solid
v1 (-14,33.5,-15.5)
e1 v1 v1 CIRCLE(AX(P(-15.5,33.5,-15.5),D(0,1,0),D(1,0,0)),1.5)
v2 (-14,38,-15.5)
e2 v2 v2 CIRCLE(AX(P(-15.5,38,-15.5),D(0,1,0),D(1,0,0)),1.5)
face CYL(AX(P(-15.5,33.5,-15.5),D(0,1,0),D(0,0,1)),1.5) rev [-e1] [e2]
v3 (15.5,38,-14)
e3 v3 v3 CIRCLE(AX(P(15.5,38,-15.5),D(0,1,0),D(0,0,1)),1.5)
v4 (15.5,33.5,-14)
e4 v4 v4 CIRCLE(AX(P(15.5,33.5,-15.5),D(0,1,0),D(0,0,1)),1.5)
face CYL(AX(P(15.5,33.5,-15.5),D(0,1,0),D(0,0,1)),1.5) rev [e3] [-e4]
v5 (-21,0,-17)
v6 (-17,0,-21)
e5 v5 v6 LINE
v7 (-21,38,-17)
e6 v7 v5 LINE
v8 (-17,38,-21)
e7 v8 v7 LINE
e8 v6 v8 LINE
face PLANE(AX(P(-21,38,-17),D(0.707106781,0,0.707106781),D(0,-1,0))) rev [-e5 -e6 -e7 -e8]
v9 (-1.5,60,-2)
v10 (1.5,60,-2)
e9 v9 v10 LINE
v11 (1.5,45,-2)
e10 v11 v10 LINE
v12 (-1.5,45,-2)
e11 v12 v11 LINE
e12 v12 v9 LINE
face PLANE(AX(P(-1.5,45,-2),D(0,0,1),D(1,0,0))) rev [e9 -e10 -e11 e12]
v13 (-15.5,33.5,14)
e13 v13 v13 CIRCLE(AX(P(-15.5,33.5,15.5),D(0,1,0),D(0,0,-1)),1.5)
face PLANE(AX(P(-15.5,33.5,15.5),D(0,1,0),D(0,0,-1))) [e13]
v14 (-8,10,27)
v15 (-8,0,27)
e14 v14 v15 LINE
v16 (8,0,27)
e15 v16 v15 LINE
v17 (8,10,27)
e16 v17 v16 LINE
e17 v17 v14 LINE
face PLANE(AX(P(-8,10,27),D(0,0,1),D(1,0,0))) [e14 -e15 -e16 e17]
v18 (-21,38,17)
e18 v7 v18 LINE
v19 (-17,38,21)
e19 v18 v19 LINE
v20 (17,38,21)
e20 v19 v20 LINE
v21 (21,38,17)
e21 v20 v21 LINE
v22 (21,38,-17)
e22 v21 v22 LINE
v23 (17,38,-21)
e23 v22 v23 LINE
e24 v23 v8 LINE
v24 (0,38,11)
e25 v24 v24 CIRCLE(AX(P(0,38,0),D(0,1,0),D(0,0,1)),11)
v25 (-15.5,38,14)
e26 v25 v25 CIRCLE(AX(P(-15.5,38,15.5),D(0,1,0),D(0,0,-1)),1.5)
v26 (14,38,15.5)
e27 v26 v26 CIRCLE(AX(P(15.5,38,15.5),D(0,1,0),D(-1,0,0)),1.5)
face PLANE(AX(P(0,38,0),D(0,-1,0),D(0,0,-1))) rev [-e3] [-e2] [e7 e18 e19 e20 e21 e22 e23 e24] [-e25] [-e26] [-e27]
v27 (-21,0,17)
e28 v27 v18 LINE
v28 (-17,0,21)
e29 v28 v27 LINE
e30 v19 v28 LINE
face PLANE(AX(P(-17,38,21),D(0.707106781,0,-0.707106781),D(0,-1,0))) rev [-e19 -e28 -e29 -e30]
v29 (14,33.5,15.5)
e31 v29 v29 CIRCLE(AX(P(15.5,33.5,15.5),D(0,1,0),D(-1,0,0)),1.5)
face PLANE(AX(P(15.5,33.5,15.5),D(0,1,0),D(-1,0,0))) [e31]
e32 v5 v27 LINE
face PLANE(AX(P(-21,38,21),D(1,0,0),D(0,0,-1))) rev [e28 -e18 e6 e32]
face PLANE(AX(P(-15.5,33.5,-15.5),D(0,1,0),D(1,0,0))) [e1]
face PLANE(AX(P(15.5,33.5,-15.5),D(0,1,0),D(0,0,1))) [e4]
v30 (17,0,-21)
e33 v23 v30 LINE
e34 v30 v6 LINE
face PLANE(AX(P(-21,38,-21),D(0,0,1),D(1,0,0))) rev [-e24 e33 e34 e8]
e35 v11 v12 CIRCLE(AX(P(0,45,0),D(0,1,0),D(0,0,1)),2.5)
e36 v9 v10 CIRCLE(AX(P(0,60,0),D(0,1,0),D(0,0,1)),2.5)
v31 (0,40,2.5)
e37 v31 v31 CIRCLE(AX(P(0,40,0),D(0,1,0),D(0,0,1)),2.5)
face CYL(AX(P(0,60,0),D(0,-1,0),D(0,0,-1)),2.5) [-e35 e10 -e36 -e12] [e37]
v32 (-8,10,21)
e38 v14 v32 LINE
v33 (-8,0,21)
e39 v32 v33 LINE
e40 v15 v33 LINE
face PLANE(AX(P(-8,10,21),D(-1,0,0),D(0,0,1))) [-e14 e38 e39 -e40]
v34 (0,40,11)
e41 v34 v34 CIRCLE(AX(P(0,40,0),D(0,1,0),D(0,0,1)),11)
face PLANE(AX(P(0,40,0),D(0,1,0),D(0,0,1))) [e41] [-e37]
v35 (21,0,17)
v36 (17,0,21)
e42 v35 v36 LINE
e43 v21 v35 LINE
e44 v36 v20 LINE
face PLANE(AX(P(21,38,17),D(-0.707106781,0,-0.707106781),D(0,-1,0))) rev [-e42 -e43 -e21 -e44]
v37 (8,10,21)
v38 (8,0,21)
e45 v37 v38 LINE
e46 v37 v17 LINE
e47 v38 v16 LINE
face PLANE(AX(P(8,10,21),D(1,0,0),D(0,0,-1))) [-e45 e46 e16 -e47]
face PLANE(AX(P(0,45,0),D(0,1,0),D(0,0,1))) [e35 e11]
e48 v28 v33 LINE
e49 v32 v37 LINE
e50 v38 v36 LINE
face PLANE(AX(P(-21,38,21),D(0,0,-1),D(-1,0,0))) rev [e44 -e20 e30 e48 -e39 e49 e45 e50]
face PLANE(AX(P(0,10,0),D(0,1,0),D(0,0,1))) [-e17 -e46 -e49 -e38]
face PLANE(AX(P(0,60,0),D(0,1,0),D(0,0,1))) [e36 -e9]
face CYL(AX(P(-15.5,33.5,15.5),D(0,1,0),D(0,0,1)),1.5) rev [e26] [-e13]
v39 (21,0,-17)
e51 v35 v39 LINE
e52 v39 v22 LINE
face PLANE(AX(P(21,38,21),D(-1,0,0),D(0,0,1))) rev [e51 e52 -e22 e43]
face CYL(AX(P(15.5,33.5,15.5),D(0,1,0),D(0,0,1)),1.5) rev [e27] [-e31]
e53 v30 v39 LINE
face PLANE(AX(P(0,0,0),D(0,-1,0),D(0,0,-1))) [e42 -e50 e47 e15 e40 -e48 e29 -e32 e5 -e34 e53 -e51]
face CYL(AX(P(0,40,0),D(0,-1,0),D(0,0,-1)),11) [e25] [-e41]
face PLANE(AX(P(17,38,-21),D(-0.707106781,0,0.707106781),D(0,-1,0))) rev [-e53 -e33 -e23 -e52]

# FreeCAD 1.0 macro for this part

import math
import FreeCAD as App
import Part
import Sketcher
from FreeCAD import Vector
Q = App.Units.Quantity


def edges_at(feature, points):
    """Names of the edges that pass closest to the given points."""
    edges = feature.Shape.Edges
    near = lambda p: min(range(len(edges)), key=lambda i: edges[i].distToShape(Part.Vertex(*p))[0])
    return sorted({f"Edge{near(p) + 1}" for p in points})

doc = App.newDocument("Part")
params = doc.addObject("Spreadsheet::Sheet", "Params")
for row, (alias, value) in enumerate([
    ("sketch1_width", "42 mm"),
    ("pad1_length", "38 mm"),
    ("sketch2_diameter", "22 mm"),
    ("pad2_length", "2 mm"),
    ("sketch3_diameter", "5 mm"),
    ("pad3_length", "20 mm"),
    ("sketch4_radius", "2.5 mm"),
    ("sketch4_width", "3 mm"),
    ("pocket1_length", "15 mm"),
    ("sketch5_diameter", "3 mm"),
    ("pocket2_length", "4.5 mm"),
    ("sketch6_width", "16 mm"),
    ("sketch6_height", "6 mm"),
    ("pad4_length", "10 mm"),
    ("chamfer_size", "4 mm"),
], start=1):
    params.set(f"A{row}", alias)
    params.set(f"B{row}", "=" + value)
    params.setAlias(f"B{row}", alias)

body = doc.addObject("PartDesign::Body", "Body")

sketch1 = body.newObject("Sketcher::SketchObject", "Sketch")
sketch1.AttachmentSupport = (doc.getObject("XZ_Plane"), [""])
sketch1.MapMode = "FlatFace"
sketch1.addGeometry(Part.LineSegment(Vector(-21, -21, 0), Vector(-21, 21, 0)), False)
sketch1.addGeometry(Part.LineSegment(Vector(-21, 21, 0), Vector(21, 21, 0)), False)
sketch1.addGeometry(Part.LineSegment(Vector(21, 21, 0), Vector(21, -21, 0)), False)
sketch1.addGeometry(Part.LineSegment(Vector(21, -21, 0), Vector(-21, -21, 0)), False)
sketch1.addConstraint(Sketcher.Constraint("Coincident", 0, 2, 1, 1))
sketch1.addConstraint(Sketcher.Constraint("Coincident", 1, 2, 2, 1))
sketch1.addConstraint(Sketcher.Constraint("Coincident", 2, 2, 3, 1))
sketch1.addConstraint(Sketcher.Constraint("Coincident", 3, 2, 0, 1))
sketch1.addConstraint(Sketcher.Constraint("Vertical", 0))
sketch1.addConstraint(Sketcher.Constraint("Horizontal", 1))
sketch1.addConstraint(Sketcher.Constraint("Vertical", 2))
sketch1.addConstraint(Sketcher.Constraint("Horizontal", 3))
sketch1.addConstraint(Sketcher.Constraint("Symmetric", 0, 2, 2, 2, -1, 1))
sketch1.addConstraint(Sketcher.Constraint("Equal", 3, 0))
sketch1.addConstraint(Sketcher.Constraint("DistanceX", 1, 1, 1, 2, Q("42 mm")))
sketch1.setExpression("Constraints[10]", "Params.sketch1_width")
pad1 = body.newObject("PartDesign::Pad", "Pad")
pad1.Profile = sketch1
pad1.setExpression("Length", "Params.pad1_length")
pad1.Reversed = True

sketch2 = body.newObject("Sketcher::SketchObject", "Sketch001")
sketch2.AttachmentSupport = (doc.getObject("XZ_Plane"), [""])
sketch2.MapMode = "FlatFace"
sketch2.AttachmentOffset = App.Placement(Vector(0, 0, -38), App.Rotation())
sketch2.addGeometry(Part.Circle(Vector(0, 0, 0), Vector(0, 0, 1), 11), False)
sketch2.addConstraint(Sketcher.Constraint("Coincident", 0, 3, -1, 1))
sketch2.addConstraint(Sketcher.Constraint("Diameter", 0, Q("22 mm")))
sketch2.setExpression("Constraints[1]", "Params.sketch2_diameter")
pad2 = body.newObject("PartDesign::Pad", "Pad001")
pad2.Profile = sketch2
pad2.setExpression("Length", "Params.pad2_length")
pad2.Reversed = True

sketch3 = body.newObject("Sketcher::SketchObject", "Sketch002")
sketch3.AttachmentSupport = (doc.getObject("XZ_Plane"), [""])
sketch3.MapMode = "FlatFace"
sketch3.AttachmentOffset = App.Placement(Vector(0, 0, -40), App.Rotation())
sketch3.addGeometry(Part.Circle(Vector(0, 0, 0), Vector(0, 0, 1), 2.5), False)
sketch3.addConstraint(Sketcher.Constraint("Coincident", 0, 3, -1, 1))
sketch3.addConstraint(Sketcher.Constraint("Diameter", 0, Q("5 mm")))
sketch3.setExpression("Constraints[1]", "Params.sketch3_diameter")
pad3 = body.newObject("PartDesign::Pad", "Pad002")
pad3.Profile = sketch3
pad3.setExpression("Length", "Params.pad3_length")
pad3.Reversed = True

sketch4 = body.newObject("Sketcher::SketchObject", "Sketch003")
sketch4.AttachmentSupport = (doc.getObject("XZ_Plane"), [""])
sketch4.MapMode = "FlatFace"
sketch4.AttachmentOffset = App.Placement(Vector(0, 0, -45), App.Rotation())
sketch4.addGeometry(Part.LineSegment(Vector(-1.5, -2, 0), Vector(1.5, -2, 0)), False)
sketch4.addGeometry(Part.ArcOfCircle(Part.Circle(Vector(0, 0, 0), Vector(0, 0, 1), 2.5), math.radians(-126.869898), math.radians(-53.130102)), False)
sketch4.addConstraint(Sketcher.Constraint("Coincident", 0, 1, 1, 1))
sketch4.addConstraint(Sketcher.Constraint("Coincident", 1, 2, 0, 2))
sketch4.addConstraint(Sketcher.Constraint("Horizontal", 0))
sketch4.addConstraint(Sketcher.Constraint("Coincident", 1, 3, -1, 1))
sketch4.addConstraint(Sketcher.Constraint("Radius", 1, Q("2.5 mm")))
sketch4.addConstraint(Sketcher.Constraint("DistanceX", 0, 1, 0, 2, Q("3 mm")))
sketch4.setExpression("Constraints[4]", "Params.sketch4_radius")
sketch4.setExpression("Constraints[5]", "Params.sketch4_width")
pocket1 = body.newObject("PartDesign::Pocket", "Pocket")
pocket1.Profile = sketch4
pocket1.setExpression("Length", "Params.pocket1_length")

sketch5 = body.newObject("Sketcher::SketchObject", "Sketch004")
sketch5.AttachmentSupport = (doc.getObject("XZ_Plane"), [""])
sketch5.MapMode = "FlatFace"
sketch5.AttachmentOffset = App.Placement(Vector(0, 0, -38), App.Rotation())
sketch5.addGeometry(Part.Circle(Vector(15.5, -15.5, 0), Vector(0, 0, 1), 1.5), False)
sketch5.addConstraint(Sketcher.Constraint("Diameter", 0, Q("3 mm")))
sketch5.addConstraint(Sketcher.Constraint("DistanceX", -1, 1, 0, 3, Q("15.5 mm")))
sketch5.addConstraint(Sketcher.Constraint("DistanceY", 0, 3, -1, 1, Q("15.5 mm")))
sketch5.setExpression("Constraints[0]", "Params.sketch5_diameter")
pocket2 = body.newObject("PartDesign::Pocket", "Pocket001")
pocket2.Profile = sketch5
pocket2.setExpression("Length", "Params.pocket2_length")
pocket2.Reversed = True
doc.recompute()

polarpattern = body.newObject("PartDesign::PolarPattern", "PolarPattern")
polarpattern.Originals = [pocket2]
polarpattern.Axis = (doc.getObject("Y_Axis"), [""])
polarpattern.Angle = 360
polarpattern.Occurrences = 4
body.Tip = polarpattern

sketch6 = body.newObject("Sketcher::SketchObject", "Sketch005")
sketch6.AttachmentSupport = (doc.getObject("XZ_Plane"), [""])
sketch6.MapMode = "FlatFace"
sketch6.addGeometry(Part.LineSegment(Vector(-8, 27, 0), Vector(-8, 21, 0)), False)
sketch6.addGeometry(Part.LineSegment(Vector(-8, 21, 0), Vector(8, 21, 0)), False)
sketch6.addGeometry(Part.LineSegment(Vector(8, 21, 0), Vector(8, 27, 0)), False)
sketch6.addGeometry(Part.LineSegment(Vector(8, 27, 0), Vector(-8, 27, 0)), False)
sketch6.addConstraint(Sketcher.Constraint("Coincident", 0, 2, 1, 1))
sketch6.addConstraint(Sketcher.Constraint("Coincident", 1, 2, 2, 1))
sketch6.addConstraint(Sketcher.Constraint("Coincident", 2, 2, 3, 1))
sketch6.addConstraint(Sketcher.Constraint("Coincident", 3, 2, 0, 1))
sketch6.addConstraint(Sketcher.Constraint("Vertical", 0))
sketch6.addConstraint(Sketcher.Constraint("Horizontal", 1))
sketch6.addConstraint(Sketcher.Constraint("Vertical", 2))
sketch6.addConstraint(Sketcher.Constraint("Horizontal", 3))
sketch6.addConstraint(Sketcher.Constraint("DistanceX", 1, 1, 1, 2, Q("16 mm")))
sketch6.addConstraint(Sketcher.Constraint("DistanceY", 0, 2, 0, 1, Q("6 mm")))
sketch6.addConstraint(Sketcher.Constraint("DistanceX", 0, 2, -1, 1, Q("8 mm")))
sketch6.addConstraint(Sketcher.Constraint("DistanceY", -1, 1, 0, 2, Q("21 mm")))
sketch6.setExpression("Constraints[8]", "Params.sketch6_width")
sketch6.setExpression("Constraints[9]", "Params.sketch6_height")
pad4 = body.newObject("PartDesign::Pad", "Pad003")
pad4.Profile = sketch6
pad4.setExpression("Length", "Params.pad4_length")
pad4.Reversed = True
doc.recompute()

chamfer = body.newObject("PartDesign::Chamfer", "Chamfer")
chamfer.Base = (pad4, edges_at(pad4, [
    (21, 19, 21),
    (-21, 19, 21),
    (-21, 19, -21),
    (21, 19, -21),
]))
chamfer.setExpression("Size", "Params.chamfer_size")

doc.recompute()
